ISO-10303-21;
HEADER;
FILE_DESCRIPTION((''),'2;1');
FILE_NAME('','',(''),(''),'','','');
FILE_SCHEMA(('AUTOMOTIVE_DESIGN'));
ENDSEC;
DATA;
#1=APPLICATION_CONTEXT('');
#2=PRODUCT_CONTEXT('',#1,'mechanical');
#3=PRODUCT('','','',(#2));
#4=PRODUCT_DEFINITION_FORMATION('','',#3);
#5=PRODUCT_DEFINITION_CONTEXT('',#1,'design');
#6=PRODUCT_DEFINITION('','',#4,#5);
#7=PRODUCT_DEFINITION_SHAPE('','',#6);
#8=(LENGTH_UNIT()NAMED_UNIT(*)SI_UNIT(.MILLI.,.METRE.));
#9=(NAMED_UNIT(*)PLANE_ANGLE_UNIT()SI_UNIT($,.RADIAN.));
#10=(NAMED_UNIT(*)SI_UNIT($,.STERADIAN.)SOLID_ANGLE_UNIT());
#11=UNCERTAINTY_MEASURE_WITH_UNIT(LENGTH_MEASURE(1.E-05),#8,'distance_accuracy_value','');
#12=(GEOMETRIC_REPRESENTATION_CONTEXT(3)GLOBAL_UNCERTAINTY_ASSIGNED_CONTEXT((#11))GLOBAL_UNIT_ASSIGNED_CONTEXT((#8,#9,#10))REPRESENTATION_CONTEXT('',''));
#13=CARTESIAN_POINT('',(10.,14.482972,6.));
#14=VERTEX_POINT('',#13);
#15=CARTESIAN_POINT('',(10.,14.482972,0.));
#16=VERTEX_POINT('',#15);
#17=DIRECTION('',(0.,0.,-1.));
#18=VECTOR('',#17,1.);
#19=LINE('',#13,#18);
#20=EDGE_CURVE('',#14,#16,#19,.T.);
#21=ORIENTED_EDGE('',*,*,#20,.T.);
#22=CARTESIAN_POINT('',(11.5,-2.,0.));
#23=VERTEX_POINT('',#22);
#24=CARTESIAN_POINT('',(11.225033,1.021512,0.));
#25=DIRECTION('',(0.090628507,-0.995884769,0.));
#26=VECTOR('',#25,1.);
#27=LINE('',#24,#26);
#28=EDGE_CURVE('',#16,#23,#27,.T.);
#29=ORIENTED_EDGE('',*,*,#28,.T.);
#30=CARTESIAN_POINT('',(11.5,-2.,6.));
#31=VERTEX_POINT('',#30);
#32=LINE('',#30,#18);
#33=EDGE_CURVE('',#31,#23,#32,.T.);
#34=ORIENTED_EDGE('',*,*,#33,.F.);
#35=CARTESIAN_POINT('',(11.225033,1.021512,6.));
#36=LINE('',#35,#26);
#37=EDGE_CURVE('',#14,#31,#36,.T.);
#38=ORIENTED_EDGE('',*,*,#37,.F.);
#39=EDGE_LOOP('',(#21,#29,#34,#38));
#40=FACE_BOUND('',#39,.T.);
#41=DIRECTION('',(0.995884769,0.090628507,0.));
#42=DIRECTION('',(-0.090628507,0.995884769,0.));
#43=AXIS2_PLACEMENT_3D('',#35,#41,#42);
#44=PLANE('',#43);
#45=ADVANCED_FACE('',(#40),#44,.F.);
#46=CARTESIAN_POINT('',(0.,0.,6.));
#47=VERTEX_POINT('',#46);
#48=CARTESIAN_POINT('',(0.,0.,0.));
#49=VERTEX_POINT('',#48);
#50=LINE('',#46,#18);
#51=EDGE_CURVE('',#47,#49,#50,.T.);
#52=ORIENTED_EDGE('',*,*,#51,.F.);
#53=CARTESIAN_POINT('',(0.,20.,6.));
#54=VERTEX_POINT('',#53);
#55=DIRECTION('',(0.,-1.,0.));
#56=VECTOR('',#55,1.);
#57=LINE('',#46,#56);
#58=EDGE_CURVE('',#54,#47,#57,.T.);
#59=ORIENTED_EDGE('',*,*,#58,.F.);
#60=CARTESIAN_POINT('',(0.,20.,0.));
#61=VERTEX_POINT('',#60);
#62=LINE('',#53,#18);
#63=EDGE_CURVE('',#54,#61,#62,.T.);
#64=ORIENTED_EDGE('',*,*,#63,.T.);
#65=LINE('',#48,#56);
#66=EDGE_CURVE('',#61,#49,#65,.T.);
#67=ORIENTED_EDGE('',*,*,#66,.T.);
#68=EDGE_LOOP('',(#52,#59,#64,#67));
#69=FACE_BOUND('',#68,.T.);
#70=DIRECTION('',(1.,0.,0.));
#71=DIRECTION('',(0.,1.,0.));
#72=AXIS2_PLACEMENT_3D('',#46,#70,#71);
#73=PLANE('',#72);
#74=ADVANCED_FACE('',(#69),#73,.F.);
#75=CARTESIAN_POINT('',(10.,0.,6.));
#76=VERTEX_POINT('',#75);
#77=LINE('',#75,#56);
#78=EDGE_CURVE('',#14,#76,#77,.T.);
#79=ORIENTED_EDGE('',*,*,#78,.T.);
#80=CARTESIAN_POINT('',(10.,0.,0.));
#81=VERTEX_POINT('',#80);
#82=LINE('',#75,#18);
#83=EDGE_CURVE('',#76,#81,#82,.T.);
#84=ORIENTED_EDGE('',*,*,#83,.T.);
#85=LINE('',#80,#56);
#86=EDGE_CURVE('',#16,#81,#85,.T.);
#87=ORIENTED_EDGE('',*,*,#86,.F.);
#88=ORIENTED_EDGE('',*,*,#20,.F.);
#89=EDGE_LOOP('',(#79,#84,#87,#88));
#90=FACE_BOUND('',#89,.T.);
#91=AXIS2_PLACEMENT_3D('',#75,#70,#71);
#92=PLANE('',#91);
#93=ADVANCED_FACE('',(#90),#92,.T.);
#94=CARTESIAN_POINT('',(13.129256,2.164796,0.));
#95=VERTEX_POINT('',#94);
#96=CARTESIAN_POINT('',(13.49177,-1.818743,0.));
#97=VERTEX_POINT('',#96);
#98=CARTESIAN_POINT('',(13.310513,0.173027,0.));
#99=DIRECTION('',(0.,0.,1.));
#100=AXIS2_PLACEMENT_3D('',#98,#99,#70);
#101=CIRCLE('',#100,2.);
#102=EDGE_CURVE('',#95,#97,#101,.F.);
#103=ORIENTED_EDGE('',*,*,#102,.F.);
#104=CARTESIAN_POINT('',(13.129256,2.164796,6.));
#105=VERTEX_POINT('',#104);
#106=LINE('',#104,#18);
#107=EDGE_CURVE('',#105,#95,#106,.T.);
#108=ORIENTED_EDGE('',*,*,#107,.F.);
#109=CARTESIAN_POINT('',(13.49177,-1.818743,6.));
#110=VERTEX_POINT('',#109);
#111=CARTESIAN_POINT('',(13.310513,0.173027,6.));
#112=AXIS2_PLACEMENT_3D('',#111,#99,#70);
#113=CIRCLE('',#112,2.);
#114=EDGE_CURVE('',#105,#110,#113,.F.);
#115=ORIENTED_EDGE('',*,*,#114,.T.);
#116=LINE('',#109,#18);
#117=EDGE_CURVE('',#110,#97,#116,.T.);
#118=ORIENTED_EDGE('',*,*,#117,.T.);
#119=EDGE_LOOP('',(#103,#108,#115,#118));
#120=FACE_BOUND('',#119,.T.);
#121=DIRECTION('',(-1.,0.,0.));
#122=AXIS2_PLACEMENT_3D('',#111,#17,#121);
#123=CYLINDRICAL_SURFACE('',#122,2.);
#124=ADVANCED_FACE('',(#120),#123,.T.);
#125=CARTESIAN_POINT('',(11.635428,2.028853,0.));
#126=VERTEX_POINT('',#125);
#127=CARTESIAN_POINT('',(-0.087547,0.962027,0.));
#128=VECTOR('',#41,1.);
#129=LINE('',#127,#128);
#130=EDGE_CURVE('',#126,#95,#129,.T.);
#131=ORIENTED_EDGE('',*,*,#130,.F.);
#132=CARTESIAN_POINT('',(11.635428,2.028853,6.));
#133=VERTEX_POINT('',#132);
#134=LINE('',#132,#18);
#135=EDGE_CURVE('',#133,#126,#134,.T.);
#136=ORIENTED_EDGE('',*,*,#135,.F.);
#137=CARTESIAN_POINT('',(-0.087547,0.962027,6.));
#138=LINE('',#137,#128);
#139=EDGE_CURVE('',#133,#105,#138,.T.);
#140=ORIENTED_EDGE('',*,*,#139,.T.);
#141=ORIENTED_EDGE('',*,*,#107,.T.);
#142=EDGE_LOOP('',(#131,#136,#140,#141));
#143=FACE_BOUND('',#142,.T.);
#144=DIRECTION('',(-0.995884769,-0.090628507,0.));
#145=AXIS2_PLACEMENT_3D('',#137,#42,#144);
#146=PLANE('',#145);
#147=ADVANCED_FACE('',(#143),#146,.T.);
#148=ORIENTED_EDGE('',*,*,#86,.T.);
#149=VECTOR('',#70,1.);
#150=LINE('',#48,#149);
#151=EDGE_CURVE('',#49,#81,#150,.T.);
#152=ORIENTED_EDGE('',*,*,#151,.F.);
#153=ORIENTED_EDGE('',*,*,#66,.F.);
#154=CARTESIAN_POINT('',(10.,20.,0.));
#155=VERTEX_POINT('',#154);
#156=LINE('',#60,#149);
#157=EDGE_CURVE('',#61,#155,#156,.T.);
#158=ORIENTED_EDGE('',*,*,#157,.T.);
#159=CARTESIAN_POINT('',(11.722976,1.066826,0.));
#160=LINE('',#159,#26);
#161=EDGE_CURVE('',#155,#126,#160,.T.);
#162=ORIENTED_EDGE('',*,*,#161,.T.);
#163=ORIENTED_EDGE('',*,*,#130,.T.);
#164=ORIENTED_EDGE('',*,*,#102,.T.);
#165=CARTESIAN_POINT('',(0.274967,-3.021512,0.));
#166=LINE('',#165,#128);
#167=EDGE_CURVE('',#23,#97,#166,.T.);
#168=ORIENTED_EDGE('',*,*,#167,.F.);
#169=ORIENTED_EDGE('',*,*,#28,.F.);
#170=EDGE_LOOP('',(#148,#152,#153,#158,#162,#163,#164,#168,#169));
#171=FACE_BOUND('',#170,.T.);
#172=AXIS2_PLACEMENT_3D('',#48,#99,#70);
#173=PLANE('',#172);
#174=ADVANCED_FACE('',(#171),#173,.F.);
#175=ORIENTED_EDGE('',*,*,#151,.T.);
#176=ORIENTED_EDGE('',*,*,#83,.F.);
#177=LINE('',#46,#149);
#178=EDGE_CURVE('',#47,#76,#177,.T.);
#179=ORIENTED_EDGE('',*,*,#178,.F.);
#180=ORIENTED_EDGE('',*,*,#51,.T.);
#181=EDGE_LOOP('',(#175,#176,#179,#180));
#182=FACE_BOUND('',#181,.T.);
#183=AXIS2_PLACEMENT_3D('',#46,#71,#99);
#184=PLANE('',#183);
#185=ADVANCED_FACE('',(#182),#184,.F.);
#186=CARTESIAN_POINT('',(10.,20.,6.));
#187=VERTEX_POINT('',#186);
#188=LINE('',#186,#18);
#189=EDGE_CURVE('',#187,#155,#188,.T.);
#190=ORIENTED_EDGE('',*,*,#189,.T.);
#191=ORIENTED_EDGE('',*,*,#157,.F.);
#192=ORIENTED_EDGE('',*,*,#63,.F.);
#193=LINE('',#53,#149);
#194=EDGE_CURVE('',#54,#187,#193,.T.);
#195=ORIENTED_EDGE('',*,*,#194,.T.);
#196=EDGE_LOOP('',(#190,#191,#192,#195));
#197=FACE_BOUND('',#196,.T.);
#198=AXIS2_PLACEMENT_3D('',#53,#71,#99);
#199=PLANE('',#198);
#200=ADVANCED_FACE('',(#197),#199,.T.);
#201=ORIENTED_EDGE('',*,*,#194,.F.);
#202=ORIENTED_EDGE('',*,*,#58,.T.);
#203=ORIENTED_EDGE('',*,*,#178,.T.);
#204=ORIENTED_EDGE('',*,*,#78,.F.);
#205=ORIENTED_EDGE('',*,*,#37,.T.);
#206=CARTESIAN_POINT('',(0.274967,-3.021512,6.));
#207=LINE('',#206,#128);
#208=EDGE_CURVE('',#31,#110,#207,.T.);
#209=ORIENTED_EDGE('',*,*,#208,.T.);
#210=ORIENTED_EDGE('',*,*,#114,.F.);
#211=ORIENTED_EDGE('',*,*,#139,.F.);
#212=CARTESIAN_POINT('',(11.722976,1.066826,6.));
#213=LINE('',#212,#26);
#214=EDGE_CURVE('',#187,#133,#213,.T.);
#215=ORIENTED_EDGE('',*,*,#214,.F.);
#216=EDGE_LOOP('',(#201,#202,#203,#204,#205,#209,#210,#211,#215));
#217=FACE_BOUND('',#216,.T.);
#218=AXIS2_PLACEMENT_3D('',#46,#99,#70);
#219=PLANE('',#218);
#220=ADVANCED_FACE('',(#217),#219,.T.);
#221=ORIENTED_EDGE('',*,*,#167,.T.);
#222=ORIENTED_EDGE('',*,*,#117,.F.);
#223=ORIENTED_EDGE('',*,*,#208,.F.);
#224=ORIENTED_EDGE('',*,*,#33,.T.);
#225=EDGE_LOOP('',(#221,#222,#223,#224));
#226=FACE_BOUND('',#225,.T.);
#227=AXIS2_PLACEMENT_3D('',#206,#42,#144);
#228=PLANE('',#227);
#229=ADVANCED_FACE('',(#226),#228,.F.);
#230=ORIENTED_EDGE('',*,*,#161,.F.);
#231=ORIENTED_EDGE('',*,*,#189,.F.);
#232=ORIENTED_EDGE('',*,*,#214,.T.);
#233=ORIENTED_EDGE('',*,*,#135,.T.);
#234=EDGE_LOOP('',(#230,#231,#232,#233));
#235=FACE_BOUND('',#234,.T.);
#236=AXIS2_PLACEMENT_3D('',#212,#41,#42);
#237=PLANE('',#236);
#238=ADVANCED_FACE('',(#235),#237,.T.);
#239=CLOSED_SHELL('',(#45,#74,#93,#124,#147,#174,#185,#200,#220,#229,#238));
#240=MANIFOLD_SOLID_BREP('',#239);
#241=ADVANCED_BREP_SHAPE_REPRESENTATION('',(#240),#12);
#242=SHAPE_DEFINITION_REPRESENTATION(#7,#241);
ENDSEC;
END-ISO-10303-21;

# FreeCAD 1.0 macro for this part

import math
import FreeCAD as App
import Part
import Sketcher

V = App.Vector

doc = App.newDocument("Part")
body = doc.addObject("PartDesign::Body", "Body")

# Sketch on XY plane
sketch1 = body.newObject("Sketcher::SketchObject", "Sketch")
sketch1.AttachmentSupport = (doc.getObject("XY_Plane"), [""])
sketch1.MapMode = "FlatFace"
sketch1.addGeometry([
    Part.LineSegment(V(0, 20, 0), V(0, 0, 0)),  # 0
    Part.LineSegment(V(0, 0, 0), V(10, 0, 0)),  # 1
    Part.LineSegment(V(10, 0, 0), V(10, 14.5, 0)),  # 2
    Part.LineSegment(V(10, 14.5, 0), V(11.5, -2, 0)),  # 3
    Part.LineSegment(V(11.5, -2, 0), V(13.5, -1.8, 0)),  # 4
    Part.ArcOfCircle(Part.Circle(V(13.3, 0.2, 0), V(0, 0, 1), 2), math.radians(-85), math.radians(95)),  # 5
    Part.LineSegment(V(13.1, 2.2, 0), V(11.6, 2, 0)),  # 6
    Part.LineSegment(V(11.6, 2, 0), V(10, 20, 0)),  # 7
    Part.LineSegment(V(10, 20, 0), V(0, 20, 0)),  # 8
], False)
sketch1.addConstraint([
    Sketcher.Constraint("Coincident", 0, 2, 1, 1),
    Sketcher.Constraint("Coincident", 1, 2, 2, 1),
    Sketcher.Constraint("Coincident", 2, 2, 3, 1),
    Sketcher.Constraint("Coincident", 3, 2, 4, 1),
    Sketcher.Constraint("Tangent", 4, 2, 5, 1),
    Sketcher.Constraint("Tangent", 5, 2, 6, 1),
    Sketcher.Constraint("Coincident", 6, 2, 7, 1),
    Sketcher.Constraint("Coincident", 7, 2, 8, 1),
    Sketcher.Constraint("Coincident", 8, 2, 0, 1),
    Sketcher.Constraint("Vertical", 0),
    Sketcher.Constraint("Horizontal", 1),
    Sketcher.Constraint("Vertical", 2),
    Sketcher.Constraint("Horizontal", 8),
    Sketcher.Constraint("Coincident", 0, 2, -1, 1),
    Sketcher.Constraint("Perpendicular", 3, 4),
    Sketcher.Constraint("Parallel", 4, 6),
    Sketcher.Constraint("Perpendicular", 6, 7),
    Sketcher.Constraint("Vertical", 2, 2, 7, 2),
    Sketcher.Constraint("Radius", 5, 2.0),
    Sketcher.Constraint("DistanceX", 1, 1, 1, 2, 10.0),
    Sketcher.Constraint("DistanceY", 0, 2, 0, 1, 20.0),
    Sketcher.Constraint("Distance", 4, 2.0),
    Sketcher.Constraint("DistanceY", 3, 2, -1, 1, 2.0),
    Sketcher.Constraint("Distance", 6, 1.5),
    Sketcher.Constraint("DistanceX", -1, 1, 3, 2, 11.5),
])
pad1 = body.newObject("PartDesign::Pad", "Pad")
pad1.Profile = sketch1
pad1.Length = 6

doc.recompute()
